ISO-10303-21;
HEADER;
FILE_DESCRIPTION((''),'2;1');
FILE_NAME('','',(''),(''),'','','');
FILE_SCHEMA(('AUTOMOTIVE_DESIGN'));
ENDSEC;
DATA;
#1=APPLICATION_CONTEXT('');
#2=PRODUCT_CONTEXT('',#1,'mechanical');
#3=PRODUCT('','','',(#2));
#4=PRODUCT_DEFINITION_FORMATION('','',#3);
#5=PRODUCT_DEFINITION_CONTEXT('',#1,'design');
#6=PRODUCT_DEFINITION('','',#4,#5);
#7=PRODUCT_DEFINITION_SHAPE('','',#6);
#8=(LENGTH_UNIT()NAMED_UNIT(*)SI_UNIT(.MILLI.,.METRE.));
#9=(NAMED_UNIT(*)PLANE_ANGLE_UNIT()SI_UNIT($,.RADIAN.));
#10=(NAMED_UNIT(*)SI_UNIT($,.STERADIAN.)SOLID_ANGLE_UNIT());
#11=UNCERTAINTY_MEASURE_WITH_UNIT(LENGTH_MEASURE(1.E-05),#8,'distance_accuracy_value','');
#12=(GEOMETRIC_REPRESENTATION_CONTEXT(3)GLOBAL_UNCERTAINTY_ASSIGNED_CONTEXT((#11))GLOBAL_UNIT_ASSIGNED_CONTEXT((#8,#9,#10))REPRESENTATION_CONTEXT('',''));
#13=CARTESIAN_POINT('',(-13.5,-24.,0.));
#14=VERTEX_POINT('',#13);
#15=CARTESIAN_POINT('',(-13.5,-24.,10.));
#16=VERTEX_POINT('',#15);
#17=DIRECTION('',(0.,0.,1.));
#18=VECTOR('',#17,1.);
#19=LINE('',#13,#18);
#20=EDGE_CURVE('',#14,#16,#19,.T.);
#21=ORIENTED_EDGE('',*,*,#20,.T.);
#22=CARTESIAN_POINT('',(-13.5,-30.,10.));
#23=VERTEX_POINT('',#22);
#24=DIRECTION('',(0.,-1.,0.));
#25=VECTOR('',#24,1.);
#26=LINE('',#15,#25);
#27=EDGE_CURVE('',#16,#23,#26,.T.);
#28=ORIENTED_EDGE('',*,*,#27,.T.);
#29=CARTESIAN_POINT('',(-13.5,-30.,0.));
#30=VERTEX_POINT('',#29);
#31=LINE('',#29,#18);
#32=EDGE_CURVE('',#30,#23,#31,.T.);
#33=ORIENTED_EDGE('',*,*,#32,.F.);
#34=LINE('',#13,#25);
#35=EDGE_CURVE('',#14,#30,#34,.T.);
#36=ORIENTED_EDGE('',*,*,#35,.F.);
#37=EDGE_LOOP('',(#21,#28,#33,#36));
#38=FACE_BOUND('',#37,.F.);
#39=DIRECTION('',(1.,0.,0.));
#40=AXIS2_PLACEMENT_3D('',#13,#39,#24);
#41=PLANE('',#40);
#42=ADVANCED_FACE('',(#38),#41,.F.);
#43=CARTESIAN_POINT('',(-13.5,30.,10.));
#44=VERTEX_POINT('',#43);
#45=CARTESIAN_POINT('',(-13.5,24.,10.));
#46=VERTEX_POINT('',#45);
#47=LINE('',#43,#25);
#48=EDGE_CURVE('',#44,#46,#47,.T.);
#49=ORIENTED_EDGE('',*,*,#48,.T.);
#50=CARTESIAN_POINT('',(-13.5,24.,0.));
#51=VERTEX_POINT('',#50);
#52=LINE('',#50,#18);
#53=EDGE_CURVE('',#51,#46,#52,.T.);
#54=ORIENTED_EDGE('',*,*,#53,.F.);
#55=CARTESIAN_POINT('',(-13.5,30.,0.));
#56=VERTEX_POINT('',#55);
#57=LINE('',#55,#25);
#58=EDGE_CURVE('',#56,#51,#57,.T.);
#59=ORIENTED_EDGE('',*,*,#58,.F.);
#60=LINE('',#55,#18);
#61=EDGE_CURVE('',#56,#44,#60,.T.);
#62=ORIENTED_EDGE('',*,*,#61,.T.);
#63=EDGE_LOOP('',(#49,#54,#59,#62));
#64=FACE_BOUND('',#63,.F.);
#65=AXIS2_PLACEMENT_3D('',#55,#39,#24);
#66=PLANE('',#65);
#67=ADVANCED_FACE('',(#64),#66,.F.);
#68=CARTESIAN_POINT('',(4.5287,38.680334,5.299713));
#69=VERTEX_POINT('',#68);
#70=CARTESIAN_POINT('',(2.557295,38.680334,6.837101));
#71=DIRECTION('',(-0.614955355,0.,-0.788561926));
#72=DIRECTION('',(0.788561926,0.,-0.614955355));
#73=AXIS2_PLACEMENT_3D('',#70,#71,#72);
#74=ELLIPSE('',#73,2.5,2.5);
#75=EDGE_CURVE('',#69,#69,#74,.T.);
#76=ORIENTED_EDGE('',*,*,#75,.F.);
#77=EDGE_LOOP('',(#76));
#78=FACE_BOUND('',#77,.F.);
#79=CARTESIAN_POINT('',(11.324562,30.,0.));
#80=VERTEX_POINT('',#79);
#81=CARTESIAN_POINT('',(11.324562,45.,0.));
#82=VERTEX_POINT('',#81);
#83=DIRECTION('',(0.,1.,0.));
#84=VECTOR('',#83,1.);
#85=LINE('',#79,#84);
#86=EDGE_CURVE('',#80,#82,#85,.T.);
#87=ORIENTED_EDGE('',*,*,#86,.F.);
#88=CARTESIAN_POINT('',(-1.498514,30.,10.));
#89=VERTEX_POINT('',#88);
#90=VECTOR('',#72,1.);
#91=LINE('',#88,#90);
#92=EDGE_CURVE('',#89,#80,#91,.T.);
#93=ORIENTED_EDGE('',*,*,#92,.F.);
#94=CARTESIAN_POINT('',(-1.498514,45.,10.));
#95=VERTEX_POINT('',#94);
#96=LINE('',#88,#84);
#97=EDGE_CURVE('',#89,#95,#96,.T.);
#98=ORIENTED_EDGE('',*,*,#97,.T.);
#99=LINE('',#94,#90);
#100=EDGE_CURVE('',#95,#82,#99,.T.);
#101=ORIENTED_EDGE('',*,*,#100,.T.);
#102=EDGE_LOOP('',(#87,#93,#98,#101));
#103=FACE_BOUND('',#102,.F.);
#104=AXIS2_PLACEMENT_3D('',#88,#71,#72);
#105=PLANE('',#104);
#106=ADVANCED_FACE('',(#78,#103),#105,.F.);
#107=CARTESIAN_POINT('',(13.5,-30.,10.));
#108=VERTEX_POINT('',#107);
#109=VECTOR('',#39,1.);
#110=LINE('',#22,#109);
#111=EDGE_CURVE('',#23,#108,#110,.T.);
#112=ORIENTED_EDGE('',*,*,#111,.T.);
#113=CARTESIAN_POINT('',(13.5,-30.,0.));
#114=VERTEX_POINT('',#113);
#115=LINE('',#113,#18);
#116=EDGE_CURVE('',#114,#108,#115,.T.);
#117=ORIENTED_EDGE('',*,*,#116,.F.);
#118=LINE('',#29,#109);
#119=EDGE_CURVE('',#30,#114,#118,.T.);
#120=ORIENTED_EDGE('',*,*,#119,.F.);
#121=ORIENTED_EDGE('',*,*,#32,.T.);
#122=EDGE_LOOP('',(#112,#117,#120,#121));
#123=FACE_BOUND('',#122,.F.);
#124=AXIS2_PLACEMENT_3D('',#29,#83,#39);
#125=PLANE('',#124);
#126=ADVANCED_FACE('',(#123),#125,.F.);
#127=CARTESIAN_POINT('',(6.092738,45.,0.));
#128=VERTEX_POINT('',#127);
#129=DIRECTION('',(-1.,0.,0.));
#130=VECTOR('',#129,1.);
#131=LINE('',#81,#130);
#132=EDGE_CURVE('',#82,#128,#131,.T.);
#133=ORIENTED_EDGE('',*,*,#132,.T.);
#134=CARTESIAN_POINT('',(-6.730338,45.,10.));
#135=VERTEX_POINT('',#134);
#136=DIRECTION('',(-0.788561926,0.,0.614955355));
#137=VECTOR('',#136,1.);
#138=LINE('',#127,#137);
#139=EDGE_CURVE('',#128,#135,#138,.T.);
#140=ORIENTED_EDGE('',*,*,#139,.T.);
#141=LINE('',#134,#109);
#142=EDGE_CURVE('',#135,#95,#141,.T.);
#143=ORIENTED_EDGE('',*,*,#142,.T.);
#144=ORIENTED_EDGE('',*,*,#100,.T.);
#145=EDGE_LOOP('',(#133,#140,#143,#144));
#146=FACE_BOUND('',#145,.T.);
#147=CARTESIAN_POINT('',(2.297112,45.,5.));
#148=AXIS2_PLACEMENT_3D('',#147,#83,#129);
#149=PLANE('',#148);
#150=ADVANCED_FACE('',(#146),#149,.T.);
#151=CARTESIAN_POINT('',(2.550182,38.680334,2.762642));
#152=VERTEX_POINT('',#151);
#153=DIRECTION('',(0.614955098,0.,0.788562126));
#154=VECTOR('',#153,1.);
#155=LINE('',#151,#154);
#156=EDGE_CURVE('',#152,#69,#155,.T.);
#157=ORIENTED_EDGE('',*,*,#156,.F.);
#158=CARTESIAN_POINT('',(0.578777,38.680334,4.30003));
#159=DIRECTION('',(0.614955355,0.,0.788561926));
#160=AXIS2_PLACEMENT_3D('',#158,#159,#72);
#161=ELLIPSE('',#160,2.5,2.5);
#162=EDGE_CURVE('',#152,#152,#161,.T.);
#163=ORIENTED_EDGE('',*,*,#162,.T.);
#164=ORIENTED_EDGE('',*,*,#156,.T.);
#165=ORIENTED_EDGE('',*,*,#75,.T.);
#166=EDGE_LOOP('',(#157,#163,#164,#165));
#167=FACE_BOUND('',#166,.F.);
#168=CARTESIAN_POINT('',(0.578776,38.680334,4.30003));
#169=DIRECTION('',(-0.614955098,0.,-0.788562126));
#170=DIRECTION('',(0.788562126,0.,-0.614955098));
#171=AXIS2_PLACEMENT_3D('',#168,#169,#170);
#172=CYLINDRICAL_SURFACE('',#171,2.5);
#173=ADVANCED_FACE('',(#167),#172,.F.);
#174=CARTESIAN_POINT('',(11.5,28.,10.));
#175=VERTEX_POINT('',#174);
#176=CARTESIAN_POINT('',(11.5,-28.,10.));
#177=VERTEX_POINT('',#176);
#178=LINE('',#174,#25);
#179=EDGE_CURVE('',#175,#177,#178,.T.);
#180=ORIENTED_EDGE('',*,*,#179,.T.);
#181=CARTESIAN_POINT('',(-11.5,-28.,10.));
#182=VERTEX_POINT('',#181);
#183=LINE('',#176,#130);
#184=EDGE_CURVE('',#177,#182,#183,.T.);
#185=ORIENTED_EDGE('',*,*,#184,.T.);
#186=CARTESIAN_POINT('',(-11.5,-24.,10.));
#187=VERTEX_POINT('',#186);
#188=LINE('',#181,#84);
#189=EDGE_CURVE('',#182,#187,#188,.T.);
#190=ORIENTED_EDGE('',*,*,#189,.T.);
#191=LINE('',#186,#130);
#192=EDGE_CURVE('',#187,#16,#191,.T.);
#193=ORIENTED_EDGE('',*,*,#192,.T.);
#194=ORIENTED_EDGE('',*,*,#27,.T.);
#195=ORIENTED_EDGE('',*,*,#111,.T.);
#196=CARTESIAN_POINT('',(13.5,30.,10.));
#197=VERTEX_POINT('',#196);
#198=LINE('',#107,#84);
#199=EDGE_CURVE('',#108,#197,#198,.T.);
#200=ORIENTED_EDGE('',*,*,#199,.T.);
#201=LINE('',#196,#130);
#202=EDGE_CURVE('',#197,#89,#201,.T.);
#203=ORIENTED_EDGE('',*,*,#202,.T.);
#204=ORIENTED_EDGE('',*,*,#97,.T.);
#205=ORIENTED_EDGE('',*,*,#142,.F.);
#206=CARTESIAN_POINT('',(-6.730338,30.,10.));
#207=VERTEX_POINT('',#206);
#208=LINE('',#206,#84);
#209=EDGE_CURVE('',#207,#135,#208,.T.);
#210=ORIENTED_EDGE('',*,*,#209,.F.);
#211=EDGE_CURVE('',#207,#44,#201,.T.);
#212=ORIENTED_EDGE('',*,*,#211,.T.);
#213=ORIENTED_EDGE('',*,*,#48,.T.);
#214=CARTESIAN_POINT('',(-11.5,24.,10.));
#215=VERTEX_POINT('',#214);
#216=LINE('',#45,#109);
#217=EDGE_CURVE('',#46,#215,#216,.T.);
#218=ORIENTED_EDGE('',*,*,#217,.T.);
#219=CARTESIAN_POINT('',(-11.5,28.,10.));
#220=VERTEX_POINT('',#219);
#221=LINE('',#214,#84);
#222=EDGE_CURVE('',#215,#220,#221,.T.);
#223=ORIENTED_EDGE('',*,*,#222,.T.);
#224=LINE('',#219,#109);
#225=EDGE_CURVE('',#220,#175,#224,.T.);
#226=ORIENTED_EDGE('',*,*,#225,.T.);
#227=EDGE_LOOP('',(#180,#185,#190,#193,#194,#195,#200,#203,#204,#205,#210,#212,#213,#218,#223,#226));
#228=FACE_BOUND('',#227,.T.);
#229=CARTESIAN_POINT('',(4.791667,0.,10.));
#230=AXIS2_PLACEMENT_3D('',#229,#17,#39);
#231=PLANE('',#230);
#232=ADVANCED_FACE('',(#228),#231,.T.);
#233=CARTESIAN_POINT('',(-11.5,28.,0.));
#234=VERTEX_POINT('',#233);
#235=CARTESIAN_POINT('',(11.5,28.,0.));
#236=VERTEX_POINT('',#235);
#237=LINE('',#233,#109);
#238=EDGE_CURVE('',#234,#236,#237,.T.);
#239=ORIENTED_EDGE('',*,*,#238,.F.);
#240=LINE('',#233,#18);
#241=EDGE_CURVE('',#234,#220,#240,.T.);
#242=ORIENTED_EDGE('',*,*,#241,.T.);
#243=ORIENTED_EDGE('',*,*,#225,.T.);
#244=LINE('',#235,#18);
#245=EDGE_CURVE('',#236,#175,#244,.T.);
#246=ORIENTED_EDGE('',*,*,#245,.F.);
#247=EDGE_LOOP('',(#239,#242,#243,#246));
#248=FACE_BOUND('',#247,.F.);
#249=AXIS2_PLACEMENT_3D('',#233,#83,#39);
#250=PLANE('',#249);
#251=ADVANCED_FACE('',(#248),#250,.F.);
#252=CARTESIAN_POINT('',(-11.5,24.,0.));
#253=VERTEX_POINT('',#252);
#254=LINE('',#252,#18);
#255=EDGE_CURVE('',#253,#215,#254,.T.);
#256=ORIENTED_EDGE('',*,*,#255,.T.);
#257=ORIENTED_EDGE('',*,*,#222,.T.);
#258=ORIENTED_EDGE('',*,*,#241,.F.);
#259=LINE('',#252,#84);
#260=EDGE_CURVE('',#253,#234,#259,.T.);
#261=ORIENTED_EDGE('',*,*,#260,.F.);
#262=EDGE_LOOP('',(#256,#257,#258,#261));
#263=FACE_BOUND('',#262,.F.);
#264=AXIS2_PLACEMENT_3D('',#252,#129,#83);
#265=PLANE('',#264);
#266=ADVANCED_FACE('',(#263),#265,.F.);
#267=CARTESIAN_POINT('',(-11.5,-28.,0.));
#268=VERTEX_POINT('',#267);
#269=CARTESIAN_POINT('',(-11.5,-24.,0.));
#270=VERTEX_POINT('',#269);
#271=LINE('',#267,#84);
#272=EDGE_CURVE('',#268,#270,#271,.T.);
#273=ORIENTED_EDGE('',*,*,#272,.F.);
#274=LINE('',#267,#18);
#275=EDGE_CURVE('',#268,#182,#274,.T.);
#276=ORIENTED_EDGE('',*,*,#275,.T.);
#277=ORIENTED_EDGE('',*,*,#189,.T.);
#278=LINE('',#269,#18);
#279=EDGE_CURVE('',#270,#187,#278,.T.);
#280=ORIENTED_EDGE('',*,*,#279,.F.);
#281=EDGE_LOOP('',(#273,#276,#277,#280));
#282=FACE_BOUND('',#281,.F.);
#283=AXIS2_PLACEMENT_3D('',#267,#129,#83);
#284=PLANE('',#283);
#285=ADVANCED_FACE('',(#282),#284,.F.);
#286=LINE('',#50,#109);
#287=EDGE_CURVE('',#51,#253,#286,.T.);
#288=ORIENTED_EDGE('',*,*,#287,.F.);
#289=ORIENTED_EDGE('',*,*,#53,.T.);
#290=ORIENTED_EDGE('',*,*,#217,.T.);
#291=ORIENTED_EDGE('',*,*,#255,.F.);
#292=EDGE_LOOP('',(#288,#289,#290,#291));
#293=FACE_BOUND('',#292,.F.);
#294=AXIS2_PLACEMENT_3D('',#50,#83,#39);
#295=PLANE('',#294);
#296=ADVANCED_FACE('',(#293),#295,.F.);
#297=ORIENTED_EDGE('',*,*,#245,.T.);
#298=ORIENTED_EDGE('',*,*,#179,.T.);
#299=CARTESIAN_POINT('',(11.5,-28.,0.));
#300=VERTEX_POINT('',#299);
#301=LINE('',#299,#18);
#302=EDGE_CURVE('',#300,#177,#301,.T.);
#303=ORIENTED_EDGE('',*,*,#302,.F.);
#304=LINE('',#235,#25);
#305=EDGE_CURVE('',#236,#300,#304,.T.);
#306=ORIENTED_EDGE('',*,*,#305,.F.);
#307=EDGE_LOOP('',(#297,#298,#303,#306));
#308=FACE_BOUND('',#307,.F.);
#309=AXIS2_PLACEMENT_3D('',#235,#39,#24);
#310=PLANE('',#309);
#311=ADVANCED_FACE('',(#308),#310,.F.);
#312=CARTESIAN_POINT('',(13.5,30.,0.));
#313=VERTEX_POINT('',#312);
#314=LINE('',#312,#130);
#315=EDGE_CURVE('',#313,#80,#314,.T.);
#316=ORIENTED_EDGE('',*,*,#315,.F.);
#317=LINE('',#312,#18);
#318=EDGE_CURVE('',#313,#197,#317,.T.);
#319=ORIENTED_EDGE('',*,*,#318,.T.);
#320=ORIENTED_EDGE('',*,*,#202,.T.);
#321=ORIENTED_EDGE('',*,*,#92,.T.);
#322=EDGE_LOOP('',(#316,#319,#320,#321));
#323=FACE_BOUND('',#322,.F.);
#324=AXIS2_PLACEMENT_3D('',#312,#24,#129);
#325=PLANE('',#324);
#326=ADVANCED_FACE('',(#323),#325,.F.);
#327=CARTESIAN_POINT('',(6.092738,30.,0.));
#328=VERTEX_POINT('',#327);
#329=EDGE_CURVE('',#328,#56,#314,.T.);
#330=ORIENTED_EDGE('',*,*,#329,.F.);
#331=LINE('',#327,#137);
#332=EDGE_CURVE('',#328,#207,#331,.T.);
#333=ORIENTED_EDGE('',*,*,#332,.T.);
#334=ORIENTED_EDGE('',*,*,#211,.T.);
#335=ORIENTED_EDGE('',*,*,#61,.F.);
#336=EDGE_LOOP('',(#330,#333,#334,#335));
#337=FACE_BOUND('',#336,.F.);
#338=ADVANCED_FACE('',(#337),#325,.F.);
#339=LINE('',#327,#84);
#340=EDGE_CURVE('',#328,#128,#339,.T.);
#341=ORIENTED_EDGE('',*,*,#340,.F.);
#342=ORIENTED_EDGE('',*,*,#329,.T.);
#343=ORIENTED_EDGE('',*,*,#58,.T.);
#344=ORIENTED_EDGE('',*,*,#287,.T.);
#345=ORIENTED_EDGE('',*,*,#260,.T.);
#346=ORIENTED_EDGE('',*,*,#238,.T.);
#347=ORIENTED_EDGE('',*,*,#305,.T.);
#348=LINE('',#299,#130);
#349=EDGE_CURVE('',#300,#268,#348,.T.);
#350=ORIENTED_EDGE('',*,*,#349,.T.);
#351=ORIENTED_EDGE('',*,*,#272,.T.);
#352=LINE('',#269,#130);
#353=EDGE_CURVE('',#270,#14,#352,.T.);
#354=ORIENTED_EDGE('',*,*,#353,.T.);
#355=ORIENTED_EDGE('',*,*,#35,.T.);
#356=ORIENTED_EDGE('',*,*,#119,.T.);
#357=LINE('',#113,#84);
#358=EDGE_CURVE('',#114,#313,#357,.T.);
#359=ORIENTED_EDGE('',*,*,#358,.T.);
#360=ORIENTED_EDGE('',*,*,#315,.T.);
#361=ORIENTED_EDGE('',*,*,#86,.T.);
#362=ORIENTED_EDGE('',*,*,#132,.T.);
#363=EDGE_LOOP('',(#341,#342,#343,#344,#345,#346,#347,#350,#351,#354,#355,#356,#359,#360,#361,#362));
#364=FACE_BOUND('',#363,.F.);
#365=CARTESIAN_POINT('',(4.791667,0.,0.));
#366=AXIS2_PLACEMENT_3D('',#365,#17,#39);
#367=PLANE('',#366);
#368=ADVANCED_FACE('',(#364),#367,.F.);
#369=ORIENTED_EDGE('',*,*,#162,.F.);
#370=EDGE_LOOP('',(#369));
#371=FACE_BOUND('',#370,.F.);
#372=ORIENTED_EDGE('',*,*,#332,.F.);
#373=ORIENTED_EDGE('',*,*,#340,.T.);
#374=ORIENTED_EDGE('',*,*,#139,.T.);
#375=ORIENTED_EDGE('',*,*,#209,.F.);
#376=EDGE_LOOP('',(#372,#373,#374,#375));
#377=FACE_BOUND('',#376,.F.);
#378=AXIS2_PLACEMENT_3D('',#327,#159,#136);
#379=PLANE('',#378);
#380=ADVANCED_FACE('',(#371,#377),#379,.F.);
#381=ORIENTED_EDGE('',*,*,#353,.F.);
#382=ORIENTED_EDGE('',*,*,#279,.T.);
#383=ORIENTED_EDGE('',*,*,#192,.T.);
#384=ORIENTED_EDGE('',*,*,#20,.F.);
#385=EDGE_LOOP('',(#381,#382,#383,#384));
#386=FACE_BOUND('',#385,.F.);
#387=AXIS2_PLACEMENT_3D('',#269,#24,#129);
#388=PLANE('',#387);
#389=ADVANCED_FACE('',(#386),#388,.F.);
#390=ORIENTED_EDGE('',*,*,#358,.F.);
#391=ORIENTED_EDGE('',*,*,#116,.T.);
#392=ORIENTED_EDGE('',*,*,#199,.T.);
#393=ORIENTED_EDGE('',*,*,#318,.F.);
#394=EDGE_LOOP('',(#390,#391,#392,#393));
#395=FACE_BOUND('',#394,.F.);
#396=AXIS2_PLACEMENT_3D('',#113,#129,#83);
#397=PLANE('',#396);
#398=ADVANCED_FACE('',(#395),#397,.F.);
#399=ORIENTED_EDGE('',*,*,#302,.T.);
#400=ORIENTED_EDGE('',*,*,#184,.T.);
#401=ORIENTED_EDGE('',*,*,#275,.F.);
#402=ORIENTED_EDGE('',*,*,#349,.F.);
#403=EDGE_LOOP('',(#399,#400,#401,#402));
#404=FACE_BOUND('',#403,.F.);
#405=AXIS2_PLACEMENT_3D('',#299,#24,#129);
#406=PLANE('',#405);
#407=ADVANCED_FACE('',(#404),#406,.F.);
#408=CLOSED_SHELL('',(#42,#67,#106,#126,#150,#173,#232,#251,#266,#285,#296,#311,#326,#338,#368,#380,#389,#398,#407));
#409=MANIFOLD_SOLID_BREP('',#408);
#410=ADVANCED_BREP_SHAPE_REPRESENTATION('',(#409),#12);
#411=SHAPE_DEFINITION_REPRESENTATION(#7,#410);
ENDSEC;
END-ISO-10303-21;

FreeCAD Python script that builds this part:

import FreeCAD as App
import Part
import Sketcher

V = App.Vector
Q = App.Units.Quantity

doc = App.newDocument("Part")
body = doc.addObject("PartDesign::Body", "Body")

sketch1 = body.newObject("Sketcher::SketchObject", "Sketch")
sketch1.AttachmentSupport = (doc.getObject("XY_Plane"), [""])
sketch1.MapMode = "FlatFace"
sketch1.addGeometry(Part.LineSegment(V(-13.5, -30, 0), V(13.5, -30, 0)), False)
sketch1.addGeometry(Part.LineSegment(V(13.5, -30, 0), V(13.5, 30, 0)), False)
sketch1.addGeometry(Part.LineSegment(V(13.5, 30, 0), V(-13.5, 30, 0)), False)
sketch1.addGeometry(Part.LineSegment(V(-13.5, 30, 0), V(-13.5, 24, 0)), False)
sketch1.addGeometry(Part.LineSegment(V(-13.5, 24, 0), V(-11.5, 24, 0)), False)
sketch1.addGeometry(Part.LineSegment(V(-11.5, 24, 0), V(-11.5, 28, 0)), False)
sketch1.addGeometry(Part.LineSegment(V(-11.5, 28, 0), V(11.5, 28, 0)), False)
sketch1.addGeometry(Part.LineSegment(V(11.5, 28, 0), V(11.5, -28, 0)), False)
sketch1.addGeometry(Part.LineSegment(V(11.5, -28, 0), V(-11.5, -28, 0)), False)
sketch1.addGeometry(Part.LineSegment(V(-11.5, -28, 0), V(-11.5, -24, 0)), False)
sketch1.addGeometry(Part.LineSegment(V(-11.5, -24, 0), V(-13.5, -24, 0)), False)
sketch1.addGeometry(Part.LineSegment(V(-13.5, -24, 0), V(-13.5, -30, 0)), False)
sketch1.addConstraint(Sketcher.Constraint("Coincident", 0, 2, 1, 1))
sketch1.addConstraint(Sketcher.Constraint("Coincident", 1, 2, 2, 1))
sketch1.addConstraint(Sketcher.Constraint("Coincident", 2, 2, 3, 1))
sketch1.addConstraint(Sketcher.Constraint("Coincident", 3, 2, 4, 1))
sketch1.addConstraint(Sketcher.Constraint("Coincident", 4, 2, 5, 1))
sketch1.addConstraint(Sketcher.Constraint("Coincident", 5, 2, 6, 1))
sketch1.addConstraint(Sketcher.Constraint("Coincident", 6, 2, 7, 1))
sketch1.addConstraint(Sketcher.Constraint("Coincident", 7, 2, 8, 1))
sketch1.addConstraint(Sketcher.Constraint("Coincident", 8, 2, 9, 1))
sketch1.addConstraint(Sketcher.Constraint("Coincident", 9, 2, 10, 1))
sketch1.addConstraint(Sketcher.Constraint("Coincident", 10, 2, 11, 1))
sketch1.addConstraint(Sketcher.Constraint("Coincident", 11, 2, 0, 1))
sketch1.addConstraint(Sketcher.Constraint("Horizontal", 0))
sketch1.addConstraint(Sketcher.Constraint("Vertical", 1))
sketch1.addConstraint(Sketcher.Constraint("Horizontal", 2))
sketch1.addConstraint(Sketcher.Constraint("Vertical", 3))
sketch1.addConstraint(Sketcher.Constraint("Horizontal", 4))
sketch1.addConstraint(Sketcher.Constraint("Vertical", 5))
sketch1.addConstraint(Sketcher.Constraint("Horizontal", 6))
sketch1.addConstraint(Sketcher.Constraint("Vertical", 7))
sketch1.addConstraint(Sketcher.Constraint("Horizontal", 8))
sketch1.addConstraint(Sketcher.Constraint("Vertical", 9))
sketch1.addConstraint(Sketcher.Constraint("Horizontal", 10))
sketch1.addConstraint(Sketcher.Constraint("Vertical", 11))
sketch1.addConstraint(Sketcher.Constraint("Symmetric", 0, 2, 2, 2, -1, 1))
sketch1.addConstraint(Sketcher.Constraint("Symmetric", 5, 2, 7, 2, -1, 1))
sketch1.addConstraint(Sketcher.Constraint("Symmetric", 4, 2, 9, 2, -1))
sketch1.addConstraint(Sketcher.Constraint("Vertical", 3, 2, 10, 2))
sketch1.addConstraint(Sketcher.Constraint("DistanceX", 0, 1, 0, 2, Q("27 mm")))
sketch1.addConstraint(Sketcher.Constraint("DistanceX", 4, 1, 4, 2, Q("2 mm")))
sketch1.addConstraint(Sketcher.Constraint("DistanceY", 1, 1, 1, 2, Q("60 mm")))
sketch1.addConstraint(Sketcher.Constraint("DistanceY", 3, 2, 3, 1, Q("6 mm")))
sketch1.addConstraint(Sketcher.Constraint("DistanceY", 5, 1, 5, 2, Q("4 mm")))
pad1 = body.newObject("PartDesign::Pad", "Pad")
pad1.Profile = sketch1
pad1.Length = 10

sketch2 = body.newObject("Sketcher::SketchObject", "Sketch001")
sketch2.AttachmentSupport = (doc.getObject("XZ_Plane"), [""])
sketch2.MapMode = "FlatFace"
sketch2.AttachmentOffset = App.Placement(V(0, 0, -30), App.Rotation())
sketch2.addGeometry(Part.LineSegment(V(11.324562, 0, 0), V(6.092738, 0, 0)), False)
sketch2.addGeometry(Part.LineSegment(V(6.092738, 0, 0), V(-6.730338, 10, 0)), False)
sketch2.addGeometry(Part.LineSegment(V(-6.730338, 10, 0), V(-1.498514, 10, 0)), False)
sketch2.addGeometry(Part.LineSegment(V(-1.498514, 10, 0), V(11.324562, 0, 0)), False)
sketch2.addConstraint(Sketcher.Constraint("Coincident", 0, 2, 1, 1))
sketch2.addConstraint(Sketcher.Constraint("Coincident", 1, 2, 2, 1))
sketch2.addConstraint(Sketcher.Constraint("Coincident", 2, 2, 3, 1))
sketch2.addConstraint(Sketcher.Constraint("Coincident", 3, 2, 0, 1))
sketch2.addConstraint(Sketcher.Constraint("Horizontal", 0))
sketch2.addConstraint(Sketcher.Constraint("Horizontal", 2))
sketch2.addConstraint(Sketcher.Constraint("PointOnObject", 0, 2, -1))
sketch2.addConstraint(Sketcher.Constraint("Parallel", 1, 3))
sketch2.addConstraint(Sketcher.Constraint("DistanceY", -1, 1, 1, 2, Q("10 mm")))
sketch2.addConstraint(Sketcher.Constraint("DistanceX", 1, 2, 3, 2, Q("18.0549 mm")))
sketch2.addConstraint(Sketcher.Constraint("DistanceX", 0, 2, 0, 1, Q("5.231824 mm")))
sketch2.addConstraint(Sketcher.Constraint("DistanceX", -1, 1, 0, 2, Q("6.092738 mm")))
pad2 = body.newObject("PartDesign::Pad", "Pad001")
pad2.Profile = sketch2
pad2.Length = 15
pad2.Reversed = True

sketch3 = body.newObject("Sketcher::SketchObject", "Sketch002")
sketch3.Placement = App.Placement(V(2.304091, 0, 2.954554), App.Rotation(V(0.788562126, 0, -0.614955098), V(0, -0.999999999, 0), V(-0.614955098, 0, -0.788562126), "ZXY"))
sketch3.addGeometry(Part.Circle(V(-2.187925, -38.680334, 0), V(0, 0, 1), 2.5), False)
sketch3.addConstraint(Sketcher.Constraint("Diameter", 0, Q("5 mm")))
sketch3.addConstraint(Sketcher.Constraint("DistanceX", 0, 3, -1, 1, Q("2.187925 mm")))
sketch3.addConstraint(Sketcher.Constraint("DistanceY", 0, 3, -1, 1, Q("38.680334 mm")))
pocket1 = body.newObject("PartDesign::Pocket", "Pocket")
pocket1.Profile = sketch3
pocket1.Type = "ThroughAll"

doc.recompute()
